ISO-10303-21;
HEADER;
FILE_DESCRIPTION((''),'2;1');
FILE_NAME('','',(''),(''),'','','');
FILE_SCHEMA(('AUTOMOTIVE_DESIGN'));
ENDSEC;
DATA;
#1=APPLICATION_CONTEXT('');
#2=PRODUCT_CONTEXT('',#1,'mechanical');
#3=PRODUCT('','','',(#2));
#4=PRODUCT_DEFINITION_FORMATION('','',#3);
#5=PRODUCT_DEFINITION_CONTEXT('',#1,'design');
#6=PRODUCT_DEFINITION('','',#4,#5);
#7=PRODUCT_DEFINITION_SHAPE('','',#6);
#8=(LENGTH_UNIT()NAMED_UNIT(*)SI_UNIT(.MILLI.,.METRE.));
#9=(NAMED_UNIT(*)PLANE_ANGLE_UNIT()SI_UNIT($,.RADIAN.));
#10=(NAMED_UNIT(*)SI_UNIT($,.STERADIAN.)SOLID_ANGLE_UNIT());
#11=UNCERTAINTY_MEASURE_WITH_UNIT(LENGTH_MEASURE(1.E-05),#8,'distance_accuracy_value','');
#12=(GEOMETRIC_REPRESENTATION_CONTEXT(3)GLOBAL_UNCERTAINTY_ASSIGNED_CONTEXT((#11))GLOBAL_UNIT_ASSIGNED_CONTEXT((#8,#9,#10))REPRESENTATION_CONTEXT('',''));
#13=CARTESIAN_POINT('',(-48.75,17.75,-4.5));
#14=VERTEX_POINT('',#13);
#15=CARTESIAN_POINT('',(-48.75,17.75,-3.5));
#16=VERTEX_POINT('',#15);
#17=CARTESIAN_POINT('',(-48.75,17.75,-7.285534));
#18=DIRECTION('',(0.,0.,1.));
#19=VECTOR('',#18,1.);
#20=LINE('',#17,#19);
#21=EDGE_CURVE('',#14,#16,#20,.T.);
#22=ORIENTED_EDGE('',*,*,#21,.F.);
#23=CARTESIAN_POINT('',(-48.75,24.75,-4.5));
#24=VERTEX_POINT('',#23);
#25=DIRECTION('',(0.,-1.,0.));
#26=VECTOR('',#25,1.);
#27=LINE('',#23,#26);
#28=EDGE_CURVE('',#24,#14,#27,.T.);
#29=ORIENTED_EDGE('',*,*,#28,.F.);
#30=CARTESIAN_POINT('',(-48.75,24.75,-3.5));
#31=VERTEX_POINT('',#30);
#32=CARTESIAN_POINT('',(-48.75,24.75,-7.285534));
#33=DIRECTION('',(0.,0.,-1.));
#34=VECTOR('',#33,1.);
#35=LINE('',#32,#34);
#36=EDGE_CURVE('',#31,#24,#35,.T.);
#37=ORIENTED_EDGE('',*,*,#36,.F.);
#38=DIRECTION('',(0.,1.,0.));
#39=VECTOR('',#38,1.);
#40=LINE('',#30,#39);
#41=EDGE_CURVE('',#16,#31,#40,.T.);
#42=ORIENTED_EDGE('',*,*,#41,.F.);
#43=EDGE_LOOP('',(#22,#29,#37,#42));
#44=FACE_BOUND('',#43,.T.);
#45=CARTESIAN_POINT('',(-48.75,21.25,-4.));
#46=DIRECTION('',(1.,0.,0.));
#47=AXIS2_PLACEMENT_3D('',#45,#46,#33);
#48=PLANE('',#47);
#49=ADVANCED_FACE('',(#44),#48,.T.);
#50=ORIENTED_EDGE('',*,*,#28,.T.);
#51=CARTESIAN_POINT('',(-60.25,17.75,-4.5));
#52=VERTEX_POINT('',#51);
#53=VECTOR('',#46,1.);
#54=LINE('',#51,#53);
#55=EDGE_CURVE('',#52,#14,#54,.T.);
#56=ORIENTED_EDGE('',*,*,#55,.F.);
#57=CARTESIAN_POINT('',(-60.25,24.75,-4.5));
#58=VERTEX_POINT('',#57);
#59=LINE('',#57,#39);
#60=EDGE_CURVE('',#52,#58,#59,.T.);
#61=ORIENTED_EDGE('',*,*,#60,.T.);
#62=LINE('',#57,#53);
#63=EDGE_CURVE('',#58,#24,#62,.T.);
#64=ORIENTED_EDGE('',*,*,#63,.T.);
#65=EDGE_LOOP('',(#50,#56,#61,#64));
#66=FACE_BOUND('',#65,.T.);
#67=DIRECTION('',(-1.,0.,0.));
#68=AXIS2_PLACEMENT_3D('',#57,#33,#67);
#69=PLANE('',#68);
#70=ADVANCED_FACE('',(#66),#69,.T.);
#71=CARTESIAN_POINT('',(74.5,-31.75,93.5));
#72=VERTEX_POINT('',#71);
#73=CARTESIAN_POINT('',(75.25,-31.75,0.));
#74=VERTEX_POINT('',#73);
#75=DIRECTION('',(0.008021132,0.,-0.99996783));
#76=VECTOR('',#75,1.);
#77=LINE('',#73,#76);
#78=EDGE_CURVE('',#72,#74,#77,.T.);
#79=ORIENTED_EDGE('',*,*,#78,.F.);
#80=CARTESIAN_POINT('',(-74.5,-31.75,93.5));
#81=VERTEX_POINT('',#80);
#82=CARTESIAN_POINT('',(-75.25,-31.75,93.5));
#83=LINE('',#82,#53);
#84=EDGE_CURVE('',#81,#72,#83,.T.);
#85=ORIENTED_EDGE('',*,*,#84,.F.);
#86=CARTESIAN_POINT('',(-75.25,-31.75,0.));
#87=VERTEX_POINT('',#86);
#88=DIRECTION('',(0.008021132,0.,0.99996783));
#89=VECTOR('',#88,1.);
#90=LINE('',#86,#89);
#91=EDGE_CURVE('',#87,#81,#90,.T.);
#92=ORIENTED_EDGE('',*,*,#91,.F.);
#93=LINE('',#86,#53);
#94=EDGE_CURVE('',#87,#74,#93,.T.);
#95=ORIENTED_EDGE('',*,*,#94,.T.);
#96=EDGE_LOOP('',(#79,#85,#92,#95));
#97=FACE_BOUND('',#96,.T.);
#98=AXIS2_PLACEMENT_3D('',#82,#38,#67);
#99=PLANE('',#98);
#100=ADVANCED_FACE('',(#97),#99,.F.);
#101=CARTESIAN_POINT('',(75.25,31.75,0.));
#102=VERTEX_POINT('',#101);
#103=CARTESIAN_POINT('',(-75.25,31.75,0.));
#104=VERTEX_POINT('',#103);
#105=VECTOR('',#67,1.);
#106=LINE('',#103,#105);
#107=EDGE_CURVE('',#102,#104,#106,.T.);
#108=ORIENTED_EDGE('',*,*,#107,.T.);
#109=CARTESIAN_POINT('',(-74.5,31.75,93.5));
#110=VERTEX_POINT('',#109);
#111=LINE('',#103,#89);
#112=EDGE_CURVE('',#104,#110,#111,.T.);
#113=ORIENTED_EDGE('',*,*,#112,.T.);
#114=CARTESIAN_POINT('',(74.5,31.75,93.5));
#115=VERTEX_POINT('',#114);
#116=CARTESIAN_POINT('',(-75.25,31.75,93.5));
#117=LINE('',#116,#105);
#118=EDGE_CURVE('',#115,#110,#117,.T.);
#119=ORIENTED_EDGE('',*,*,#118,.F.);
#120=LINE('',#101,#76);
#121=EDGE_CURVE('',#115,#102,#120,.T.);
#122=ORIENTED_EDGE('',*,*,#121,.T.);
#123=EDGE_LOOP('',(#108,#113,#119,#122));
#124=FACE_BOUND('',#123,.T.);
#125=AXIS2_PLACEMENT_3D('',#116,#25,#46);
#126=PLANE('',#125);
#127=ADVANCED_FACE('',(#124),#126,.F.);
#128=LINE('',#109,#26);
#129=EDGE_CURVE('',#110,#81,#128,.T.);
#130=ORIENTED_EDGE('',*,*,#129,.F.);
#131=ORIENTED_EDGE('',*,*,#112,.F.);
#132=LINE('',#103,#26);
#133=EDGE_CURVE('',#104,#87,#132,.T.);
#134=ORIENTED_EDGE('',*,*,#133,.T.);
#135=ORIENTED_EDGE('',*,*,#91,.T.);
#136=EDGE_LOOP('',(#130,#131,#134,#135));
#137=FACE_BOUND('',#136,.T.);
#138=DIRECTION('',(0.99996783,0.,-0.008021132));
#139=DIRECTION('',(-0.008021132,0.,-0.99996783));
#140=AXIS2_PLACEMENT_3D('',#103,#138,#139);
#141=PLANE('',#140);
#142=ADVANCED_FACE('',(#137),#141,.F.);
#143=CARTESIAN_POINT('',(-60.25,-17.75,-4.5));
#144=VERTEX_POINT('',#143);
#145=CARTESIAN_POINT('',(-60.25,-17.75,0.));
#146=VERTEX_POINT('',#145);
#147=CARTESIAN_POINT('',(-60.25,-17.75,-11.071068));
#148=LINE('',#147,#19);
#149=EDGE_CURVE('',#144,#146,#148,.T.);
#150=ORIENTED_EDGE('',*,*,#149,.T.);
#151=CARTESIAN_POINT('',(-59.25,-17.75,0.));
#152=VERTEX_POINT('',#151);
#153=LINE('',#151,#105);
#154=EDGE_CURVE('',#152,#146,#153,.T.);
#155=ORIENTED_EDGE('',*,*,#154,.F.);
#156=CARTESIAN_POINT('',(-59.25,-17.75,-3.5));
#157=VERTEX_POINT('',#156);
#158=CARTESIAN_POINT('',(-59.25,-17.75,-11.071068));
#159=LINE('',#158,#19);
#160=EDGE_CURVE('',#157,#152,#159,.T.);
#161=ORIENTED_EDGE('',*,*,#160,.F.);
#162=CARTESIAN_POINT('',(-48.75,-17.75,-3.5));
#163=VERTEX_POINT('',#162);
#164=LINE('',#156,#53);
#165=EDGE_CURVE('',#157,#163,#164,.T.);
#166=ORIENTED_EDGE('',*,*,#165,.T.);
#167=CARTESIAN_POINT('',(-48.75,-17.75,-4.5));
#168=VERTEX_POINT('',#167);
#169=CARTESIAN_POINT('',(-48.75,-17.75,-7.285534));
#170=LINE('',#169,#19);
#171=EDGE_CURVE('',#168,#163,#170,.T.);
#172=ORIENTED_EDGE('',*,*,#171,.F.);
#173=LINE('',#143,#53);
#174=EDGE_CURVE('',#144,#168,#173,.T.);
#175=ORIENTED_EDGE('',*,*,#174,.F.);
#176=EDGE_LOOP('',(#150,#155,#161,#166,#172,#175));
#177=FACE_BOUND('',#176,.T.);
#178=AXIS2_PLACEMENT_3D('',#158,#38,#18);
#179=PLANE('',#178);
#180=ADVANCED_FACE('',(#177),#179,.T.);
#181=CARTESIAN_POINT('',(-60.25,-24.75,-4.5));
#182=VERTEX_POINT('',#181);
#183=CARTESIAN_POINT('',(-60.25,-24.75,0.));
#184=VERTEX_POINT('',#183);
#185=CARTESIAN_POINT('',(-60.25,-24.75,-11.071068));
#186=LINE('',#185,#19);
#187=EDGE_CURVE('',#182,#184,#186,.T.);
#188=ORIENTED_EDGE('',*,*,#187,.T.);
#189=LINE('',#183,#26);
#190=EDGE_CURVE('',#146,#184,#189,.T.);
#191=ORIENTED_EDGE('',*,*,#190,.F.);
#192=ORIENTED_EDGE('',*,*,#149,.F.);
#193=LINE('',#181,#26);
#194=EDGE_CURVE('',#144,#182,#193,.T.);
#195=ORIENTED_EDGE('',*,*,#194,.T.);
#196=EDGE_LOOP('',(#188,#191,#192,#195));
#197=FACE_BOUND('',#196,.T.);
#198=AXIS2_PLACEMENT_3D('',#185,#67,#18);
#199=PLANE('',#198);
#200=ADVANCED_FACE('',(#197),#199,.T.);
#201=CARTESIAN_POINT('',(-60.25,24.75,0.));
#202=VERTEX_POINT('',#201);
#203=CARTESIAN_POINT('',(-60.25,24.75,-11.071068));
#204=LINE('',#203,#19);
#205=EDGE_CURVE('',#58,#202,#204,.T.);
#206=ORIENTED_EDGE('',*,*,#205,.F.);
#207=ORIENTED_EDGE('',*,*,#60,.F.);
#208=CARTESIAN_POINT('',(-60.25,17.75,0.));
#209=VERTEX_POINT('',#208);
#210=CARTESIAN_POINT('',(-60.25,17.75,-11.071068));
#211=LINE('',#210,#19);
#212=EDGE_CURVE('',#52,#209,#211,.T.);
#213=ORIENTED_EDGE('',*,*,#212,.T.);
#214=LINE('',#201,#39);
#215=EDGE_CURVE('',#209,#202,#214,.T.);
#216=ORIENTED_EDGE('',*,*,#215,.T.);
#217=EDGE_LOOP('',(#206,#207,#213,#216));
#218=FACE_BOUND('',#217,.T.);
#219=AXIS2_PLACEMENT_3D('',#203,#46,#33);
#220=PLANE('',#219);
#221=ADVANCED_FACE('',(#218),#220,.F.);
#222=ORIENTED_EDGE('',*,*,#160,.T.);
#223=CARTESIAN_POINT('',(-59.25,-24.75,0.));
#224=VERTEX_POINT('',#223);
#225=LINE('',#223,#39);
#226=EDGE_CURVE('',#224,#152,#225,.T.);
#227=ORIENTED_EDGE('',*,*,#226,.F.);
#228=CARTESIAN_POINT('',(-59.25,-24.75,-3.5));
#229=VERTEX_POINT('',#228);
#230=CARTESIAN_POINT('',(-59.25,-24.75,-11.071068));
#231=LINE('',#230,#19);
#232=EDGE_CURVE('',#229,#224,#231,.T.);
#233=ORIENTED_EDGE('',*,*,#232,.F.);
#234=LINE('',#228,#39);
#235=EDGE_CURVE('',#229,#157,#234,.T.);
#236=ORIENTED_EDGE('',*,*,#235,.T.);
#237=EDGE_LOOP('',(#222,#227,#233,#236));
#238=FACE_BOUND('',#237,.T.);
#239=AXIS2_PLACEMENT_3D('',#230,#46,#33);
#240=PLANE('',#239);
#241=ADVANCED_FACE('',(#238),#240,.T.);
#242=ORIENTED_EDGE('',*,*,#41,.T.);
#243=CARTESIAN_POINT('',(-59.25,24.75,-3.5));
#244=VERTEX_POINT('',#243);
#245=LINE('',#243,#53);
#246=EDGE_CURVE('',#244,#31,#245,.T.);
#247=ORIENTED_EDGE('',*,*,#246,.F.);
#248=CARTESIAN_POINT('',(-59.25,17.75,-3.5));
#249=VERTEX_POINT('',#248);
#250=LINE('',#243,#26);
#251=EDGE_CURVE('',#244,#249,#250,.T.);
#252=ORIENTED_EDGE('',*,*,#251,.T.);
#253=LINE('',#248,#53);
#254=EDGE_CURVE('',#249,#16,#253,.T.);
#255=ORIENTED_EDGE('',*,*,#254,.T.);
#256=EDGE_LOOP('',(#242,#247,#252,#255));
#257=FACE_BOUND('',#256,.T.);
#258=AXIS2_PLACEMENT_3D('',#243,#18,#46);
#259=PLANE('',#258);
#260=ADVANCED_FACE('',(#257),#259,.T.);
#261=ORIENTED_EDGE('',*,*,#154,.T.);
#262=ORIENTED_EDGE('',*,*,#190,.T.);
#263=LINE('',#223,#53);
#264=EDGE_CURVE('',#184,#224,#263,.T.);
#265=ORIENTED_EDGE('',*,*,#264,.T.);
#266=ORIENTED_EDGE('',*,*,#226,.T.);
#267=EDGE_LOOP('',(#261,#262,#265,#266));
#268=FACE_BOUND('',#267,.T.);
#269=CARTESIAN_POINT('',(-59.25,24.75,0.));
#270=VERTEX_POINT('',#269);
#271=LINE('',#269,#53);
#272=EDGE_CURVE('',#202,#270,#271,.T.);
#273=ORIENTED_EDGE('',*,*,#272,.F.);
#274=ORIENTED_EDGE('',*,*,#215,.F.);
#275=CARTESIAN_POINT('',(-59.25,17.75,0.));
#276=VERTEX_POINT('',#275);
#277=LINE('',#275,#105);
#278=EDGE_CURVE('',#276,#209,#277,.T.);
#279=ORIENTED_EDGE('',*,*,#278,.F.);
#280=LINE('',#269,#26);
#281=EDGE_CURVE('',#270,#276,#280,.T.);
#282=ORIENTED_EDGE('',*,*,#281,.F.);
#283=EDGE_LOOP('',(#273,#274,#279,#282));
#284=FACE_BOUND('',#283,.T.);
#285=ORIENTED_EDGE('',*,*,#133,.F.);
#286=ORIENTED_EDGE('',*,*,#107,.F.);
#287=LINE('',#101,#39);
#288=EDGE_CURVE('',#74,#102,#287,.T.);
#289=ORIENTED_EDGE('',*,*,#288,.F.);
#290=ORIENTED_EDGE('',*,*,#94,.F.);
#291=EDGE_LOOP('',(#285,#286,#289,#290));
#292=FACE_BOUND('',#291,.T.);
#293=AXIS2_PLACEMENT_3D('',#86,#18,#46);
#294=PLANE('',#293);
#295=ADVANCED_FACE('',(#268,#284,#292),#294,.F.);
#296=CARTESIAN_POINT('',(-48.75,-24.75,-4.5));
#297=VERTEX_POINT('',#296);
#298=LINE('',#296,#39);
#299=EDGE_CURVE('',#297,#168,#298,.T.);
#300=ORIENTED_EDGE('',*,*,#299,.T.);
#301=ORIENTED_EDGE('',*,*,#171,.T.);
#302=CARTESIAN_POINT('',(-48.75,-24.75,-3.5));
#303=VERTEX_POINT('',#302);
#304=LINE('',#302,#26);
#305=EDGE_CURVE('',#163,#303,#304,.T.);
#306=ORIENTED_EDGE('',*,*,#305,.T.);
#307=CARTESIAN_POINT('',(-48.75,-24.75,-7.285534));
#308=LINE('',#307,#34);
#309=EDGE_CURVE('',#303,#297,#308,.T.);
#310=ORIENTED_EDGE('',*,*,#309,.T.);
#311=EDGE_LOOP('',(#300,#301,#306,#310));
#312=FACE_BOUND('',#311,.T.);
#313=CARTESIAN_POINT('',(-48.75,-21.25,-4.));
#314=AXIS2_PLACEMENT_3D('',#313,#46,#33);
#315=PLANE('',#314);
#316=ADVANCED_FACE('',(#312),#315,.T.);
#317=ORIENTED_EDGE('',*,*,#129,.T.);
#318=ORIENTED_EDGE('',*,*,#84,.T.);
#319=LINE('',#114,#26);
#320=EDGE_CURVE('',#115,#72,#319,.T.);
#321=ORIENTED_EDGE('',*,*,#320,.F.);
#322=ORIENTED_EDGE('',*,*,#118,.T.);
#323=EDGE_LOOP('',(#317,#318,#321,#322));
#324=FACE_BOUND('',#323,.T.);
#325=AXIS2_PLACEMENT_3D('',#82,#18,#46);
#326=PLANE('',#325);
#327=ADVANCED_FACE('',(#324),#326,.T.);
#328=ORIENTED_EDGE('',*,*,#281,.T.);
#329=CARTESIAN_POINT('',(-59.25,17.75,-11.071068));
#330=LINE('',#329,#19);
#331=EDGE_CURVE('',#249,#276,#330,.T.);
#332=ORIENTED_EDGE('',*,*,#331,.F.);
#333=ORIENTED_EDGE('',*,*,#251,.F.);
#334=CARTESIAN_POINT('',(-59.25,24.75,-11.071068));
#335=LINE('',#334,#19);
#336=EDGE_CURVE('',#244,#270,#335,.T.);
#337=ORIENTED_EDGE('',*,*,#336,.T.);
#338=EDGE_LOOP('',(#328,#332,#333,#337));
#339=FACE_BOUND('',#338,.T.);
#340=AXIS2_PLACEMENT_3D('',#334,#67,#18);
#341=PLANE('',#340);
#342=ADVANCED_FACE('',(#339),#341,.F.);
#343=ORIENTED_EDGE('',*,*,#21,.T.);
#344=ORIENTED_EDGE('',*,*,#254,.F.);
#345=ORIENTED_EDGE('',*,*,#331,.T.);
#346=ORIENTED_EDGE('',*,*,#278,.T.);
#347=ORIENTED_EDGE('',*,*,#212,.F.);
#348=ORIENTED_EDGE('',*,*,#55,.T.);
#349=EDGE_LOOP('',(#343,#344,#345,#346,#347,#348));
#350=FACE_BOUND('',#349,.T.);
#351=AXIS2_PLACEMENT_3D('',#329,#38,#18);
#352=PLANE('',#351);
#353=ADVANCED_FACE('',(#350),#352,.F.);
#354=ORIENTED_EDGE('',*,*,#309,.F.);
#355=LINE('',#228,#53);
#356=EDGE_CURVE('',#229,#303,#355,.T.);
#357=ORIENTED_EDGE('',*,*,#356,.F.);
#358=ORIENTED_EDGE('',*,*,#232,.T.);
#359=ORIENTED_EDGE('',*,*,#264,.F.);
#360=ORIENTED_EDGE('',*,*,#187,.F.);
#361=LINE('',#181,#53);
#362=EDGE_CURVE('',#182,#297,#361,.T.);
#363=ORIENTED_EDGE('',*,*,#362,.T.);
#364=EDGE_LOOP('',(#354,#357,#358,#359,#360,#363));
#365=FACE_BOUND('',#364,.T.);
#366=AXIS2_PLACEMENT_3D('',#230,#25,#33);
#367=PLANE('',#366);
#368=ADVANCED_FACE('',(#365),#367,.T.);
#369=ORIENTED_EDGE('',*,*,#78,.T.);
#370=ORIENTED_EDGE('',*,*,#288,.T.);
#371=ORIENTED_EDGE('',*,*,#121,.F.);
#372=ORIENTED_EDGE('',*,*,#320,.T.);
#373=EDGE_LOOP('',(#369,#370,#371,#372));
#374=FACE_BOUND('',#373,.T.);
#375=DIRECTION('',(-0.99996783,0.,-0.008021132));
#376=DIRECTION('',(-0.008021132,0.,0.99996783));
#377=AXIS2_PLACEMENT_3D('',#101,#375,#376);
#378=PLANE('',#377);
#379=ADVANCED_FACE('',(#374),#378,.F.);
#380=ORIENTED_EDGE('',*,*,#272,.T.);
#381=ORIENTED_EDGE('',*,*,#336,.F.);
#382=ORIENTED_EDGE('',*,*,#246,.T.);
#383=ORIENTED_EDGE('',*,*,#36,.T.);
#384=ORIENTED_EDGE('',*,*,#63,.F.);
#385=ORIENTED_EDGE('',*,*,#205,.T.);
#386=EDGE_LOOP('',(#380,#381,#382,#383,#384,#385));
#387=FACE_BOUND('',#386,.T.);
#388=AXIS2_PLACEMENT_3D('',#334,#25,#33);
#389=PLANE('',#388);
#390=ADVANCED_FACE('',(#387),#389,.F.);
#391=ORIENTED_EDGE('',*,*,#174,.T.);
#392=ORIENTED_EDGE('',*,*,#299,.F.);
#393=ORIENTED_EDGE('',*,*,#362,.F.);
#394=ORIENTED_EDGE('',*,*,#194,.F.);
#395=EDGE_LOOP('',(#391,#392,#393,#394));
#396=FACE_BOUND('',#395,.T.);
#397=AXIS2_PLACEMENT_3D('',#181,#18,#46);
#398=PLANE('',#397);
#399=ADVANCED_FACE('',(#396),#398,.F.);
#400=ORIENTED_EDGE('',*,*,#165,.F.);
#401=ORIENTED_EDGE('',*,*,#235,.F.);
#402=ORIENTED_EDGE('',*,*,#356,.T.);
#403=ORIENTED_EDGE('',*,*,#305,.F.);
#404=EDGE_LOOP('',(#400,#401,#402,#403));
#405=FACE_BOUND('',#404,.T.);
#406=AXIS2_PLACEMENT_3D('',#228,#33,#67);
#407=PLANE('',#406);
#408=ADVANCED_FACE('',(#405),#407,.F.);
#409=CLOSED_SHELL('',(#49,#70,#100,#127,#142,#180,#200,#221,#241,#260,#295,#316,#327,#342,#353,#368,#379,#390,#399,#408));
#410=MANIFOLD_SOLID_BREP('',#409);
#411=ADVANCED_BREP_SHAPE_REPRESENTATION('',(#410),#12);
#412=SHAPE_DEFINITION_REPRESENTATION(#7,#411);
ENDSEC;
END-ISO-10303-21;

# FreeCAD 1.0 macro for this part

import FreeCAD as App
import Part
import Sketcher
from FreeCAD import Vector
Q = App.Units.Quantity


def add_polygon(sketch, points):
    """Adds a closed chain of lines whose ends are joined by coincident constraints."""
    first, n = sketch.GeometryCount, len(points)
    for a, b in zip(points, points[1:] + points[:1]):
        sketch.addGeometry(Part.LineSegment(App.Vector(*a, 0), App.Vector(*b, 0)), False)
    for i in range(n):
        sketch.addConstraint(Sketcher.Constraint("Coincident", first + i, 2, first + (i + 1) % n, 1))

doc = App.newDocument("Part")
body = doc.addObject("PartDesign::Body", "Body")

# Sketch on XY plane
sketch1 = body.newObject("Sketcher::SketchObject", "Sketch")
sketch1.AttachmentSupport = (doc.getObject("XY_Plane"), [""])
sketch1.MapMode = "FlatFace"
add_polygon(sketch1, [(-75, 32), (-75, -32), (75, -32), (75, 32)])  # lines 0-3
sketch1.addConstraint(Sketcher.Constraint("Vertical", 0))
sketch1.addConstraint(Sketcher.Constraint("Horizontal", 1))
sketch1.addConstraint(Sketcher.Constraint("Vertical", 2))
sketch1.addConstraint(Sketcher.Constraint("Horizontal", 3))
sketch1.addConstraint(Sketcher.Constraint("Symmetric", 0, 2, 2, 2, -1, 1))
sketch1.addConstraint(Sketcher.Constraint("DistanceX", 1, 1, 1, 2, Q("150.5 mm")))
sketch1.addConstraint(Sketcher.Constraint("DistanceY", 0, 2, 0, 1, Q("63.5 mm")))
pad1 = body.newObject("PartDesign::Pad", "Pad")
pad1.Profile = sketch1
pad1.Length = 93.5

# Sketch on XY plane
sketch2 = body.newObject("Sketcher::SketchObject", "Sketch001")
sketch2.AttachmentSupport = (doc.getObject("XY_Plane"), [""])
sketch2.MapMode = "FlatFace"
add_polygon(sketch2, [(-59.2, 24.8), (-59.2, 17.8), (-60.2, 17.8), (-60.2, 24.8)])  # lines 0-3
sketch2.addConstraint(Sketcher.Constraint("Vertical", 0))
sketch2.addConstraint(Sketcher.Constraint("Horizontal", 1))
sketch2.addConstraint(Sketcher.Constraint("Vertical", 2))
sketch2.addConstraint(Sketcher.Constraint("Horizontal", 3))
sketch2.addConstraint(Sketcher.Constraint("DistanceX", 1, 2, 1, 1, Q("1 mm")))
sketch2.addConstraint(Sketcher.Constraint("DistanceY", 0, 2, 0, 1, Q("7 mm")))
sketch2.addConstraint(Sketcher.Constraint("DistanceX", 0, 2, -1, 1, Q("59.25 mm")))
sketch2.addConstraint(Sketcher.Constraint("DistanceY", -1, 1, 0, 2, Q("17.75 mm")))

# Sketch on XZ plane
sketch3 = body.newObject("Sketcher::SketchObject", "Sketch002")
sketch3.AttachmentSupport = (doc.getObject("XZ_Plane"), [""])
sketch3.MapMode = "FlatFace"
sketch3.AttachmentOffset = App.Placement(Vector(0, 0, -19), App.Rotation())
sketch3.addGeometry(Part.LineSegment(Vector(-59.8, 0, 0), Vector(-59.8, -4, 0)), False)
sketch3.addGeometry(Part.LineSegment(Vector(-59.8, -4, 0), Vector(-48.8, -4, 0)), False)
sketch3.addConstraint(Sketcher.Constraint("Coincident", 0, 2, 1, 1))
sketch3.addConstraint(Sketcher.Constraint("Vertical", 0))
sketch3.addConstraint(Sketcher.Constraint("Horizontal", 1))
sketch3.addConstraint(Sketcher.Constraint("PointOnObject", 0, 1, -1))
sketch3.addConstraint(Sketcher.Constraint("DistanceX", 1, 1, 1, 2, Q("11 mm")))
sketch3.addConstraint(Sketcher.Constraint("DistanceY", 0, 2, 0, 1, Q("4 mm")))
sketch3.addConstraint(Sketcher.Constraint("DistanceX", 0, 1, -1, 1, Q("59.75 mm")))
doc.recompute()

additivepipe = body.newObject("PartDesign::AdditivePipe", "AdditivePipe")
additivepipe.Profile = sketch2
additivepipe.Spine = (sketch3, ["Edge1", "Edge2"])
additivepipe.Transition = "Right corner"
doc.recompute()

mirrored = body.newObject("PartDesign::Mirrored", "Mirrored")
mirrored.Originals = [additivepipe]
mirrored.MirrorPlane = (doc.getObject("XZ_Plane"), [""])
body.Tip = mirrored

# Sketch on XZ plane
sketch4 = body.newObject("Sketcher::SketchObject", "Sketch003")
sketch4.AttachmentSupport = (doc.getObject("XZ_Plane"), [""])
sketch4.MapMode = "FlatFace"
sketch4.AttachmentOffset = App.Placement(Vector(0, 0, 31.75), App.Rotation())
add_polygon(sketch4, [(-75.2, 0), (-74.5, 93.5), (-75.2, 93.5)])  # lines 0-2
add_polygon(sketch4, [(75.2, 93.5), (74.5, 93.5), (75.2, 0)])  # lines 3-5
sketch4.addConstraint(Sketcher.Constraint("Horizontal", 1))
sketch4.addConstraint(Sketcher.Constraint("Vertical", 2))
sketch4.addConstraint(Sketcher.Constraint("Horizontal", 3))
sketch4.addConstraint(Sketcher.Constraint("Vertical", 5))
sketch4.addConstraint(Sketcher.Constraint("Symmetric", 2, 2, 4, 2, -1, 1))
sketch4.addConstraint(Sketcher.Constraint("Symmetric", 0, 2, 3, 2, -2))
sketch4.addConstraint(Sketcher.Constraint("PointOnObject", 2, 2, -1))
sketch4.addConstraint(Sketcher.Constraint("DistanceY", 2, 2, 2, 1, Q("93.5 mm")))
sketch4.addConstraint(Sketcher.Constraint("DistanceX", 0, 2, 3, 2, Q("149 mm")))
sketch4.addConstraint(Sketcher.Constraint("DistanceX", 1, 2, 1, 1, Q("0.75 mm")))
pocket1 = body.newObject("PartDesign::Pocket", "Pocket")
pocket1.Profile = sketch4
pocket1.Type = "ThroughAll"

doc.recompute()
